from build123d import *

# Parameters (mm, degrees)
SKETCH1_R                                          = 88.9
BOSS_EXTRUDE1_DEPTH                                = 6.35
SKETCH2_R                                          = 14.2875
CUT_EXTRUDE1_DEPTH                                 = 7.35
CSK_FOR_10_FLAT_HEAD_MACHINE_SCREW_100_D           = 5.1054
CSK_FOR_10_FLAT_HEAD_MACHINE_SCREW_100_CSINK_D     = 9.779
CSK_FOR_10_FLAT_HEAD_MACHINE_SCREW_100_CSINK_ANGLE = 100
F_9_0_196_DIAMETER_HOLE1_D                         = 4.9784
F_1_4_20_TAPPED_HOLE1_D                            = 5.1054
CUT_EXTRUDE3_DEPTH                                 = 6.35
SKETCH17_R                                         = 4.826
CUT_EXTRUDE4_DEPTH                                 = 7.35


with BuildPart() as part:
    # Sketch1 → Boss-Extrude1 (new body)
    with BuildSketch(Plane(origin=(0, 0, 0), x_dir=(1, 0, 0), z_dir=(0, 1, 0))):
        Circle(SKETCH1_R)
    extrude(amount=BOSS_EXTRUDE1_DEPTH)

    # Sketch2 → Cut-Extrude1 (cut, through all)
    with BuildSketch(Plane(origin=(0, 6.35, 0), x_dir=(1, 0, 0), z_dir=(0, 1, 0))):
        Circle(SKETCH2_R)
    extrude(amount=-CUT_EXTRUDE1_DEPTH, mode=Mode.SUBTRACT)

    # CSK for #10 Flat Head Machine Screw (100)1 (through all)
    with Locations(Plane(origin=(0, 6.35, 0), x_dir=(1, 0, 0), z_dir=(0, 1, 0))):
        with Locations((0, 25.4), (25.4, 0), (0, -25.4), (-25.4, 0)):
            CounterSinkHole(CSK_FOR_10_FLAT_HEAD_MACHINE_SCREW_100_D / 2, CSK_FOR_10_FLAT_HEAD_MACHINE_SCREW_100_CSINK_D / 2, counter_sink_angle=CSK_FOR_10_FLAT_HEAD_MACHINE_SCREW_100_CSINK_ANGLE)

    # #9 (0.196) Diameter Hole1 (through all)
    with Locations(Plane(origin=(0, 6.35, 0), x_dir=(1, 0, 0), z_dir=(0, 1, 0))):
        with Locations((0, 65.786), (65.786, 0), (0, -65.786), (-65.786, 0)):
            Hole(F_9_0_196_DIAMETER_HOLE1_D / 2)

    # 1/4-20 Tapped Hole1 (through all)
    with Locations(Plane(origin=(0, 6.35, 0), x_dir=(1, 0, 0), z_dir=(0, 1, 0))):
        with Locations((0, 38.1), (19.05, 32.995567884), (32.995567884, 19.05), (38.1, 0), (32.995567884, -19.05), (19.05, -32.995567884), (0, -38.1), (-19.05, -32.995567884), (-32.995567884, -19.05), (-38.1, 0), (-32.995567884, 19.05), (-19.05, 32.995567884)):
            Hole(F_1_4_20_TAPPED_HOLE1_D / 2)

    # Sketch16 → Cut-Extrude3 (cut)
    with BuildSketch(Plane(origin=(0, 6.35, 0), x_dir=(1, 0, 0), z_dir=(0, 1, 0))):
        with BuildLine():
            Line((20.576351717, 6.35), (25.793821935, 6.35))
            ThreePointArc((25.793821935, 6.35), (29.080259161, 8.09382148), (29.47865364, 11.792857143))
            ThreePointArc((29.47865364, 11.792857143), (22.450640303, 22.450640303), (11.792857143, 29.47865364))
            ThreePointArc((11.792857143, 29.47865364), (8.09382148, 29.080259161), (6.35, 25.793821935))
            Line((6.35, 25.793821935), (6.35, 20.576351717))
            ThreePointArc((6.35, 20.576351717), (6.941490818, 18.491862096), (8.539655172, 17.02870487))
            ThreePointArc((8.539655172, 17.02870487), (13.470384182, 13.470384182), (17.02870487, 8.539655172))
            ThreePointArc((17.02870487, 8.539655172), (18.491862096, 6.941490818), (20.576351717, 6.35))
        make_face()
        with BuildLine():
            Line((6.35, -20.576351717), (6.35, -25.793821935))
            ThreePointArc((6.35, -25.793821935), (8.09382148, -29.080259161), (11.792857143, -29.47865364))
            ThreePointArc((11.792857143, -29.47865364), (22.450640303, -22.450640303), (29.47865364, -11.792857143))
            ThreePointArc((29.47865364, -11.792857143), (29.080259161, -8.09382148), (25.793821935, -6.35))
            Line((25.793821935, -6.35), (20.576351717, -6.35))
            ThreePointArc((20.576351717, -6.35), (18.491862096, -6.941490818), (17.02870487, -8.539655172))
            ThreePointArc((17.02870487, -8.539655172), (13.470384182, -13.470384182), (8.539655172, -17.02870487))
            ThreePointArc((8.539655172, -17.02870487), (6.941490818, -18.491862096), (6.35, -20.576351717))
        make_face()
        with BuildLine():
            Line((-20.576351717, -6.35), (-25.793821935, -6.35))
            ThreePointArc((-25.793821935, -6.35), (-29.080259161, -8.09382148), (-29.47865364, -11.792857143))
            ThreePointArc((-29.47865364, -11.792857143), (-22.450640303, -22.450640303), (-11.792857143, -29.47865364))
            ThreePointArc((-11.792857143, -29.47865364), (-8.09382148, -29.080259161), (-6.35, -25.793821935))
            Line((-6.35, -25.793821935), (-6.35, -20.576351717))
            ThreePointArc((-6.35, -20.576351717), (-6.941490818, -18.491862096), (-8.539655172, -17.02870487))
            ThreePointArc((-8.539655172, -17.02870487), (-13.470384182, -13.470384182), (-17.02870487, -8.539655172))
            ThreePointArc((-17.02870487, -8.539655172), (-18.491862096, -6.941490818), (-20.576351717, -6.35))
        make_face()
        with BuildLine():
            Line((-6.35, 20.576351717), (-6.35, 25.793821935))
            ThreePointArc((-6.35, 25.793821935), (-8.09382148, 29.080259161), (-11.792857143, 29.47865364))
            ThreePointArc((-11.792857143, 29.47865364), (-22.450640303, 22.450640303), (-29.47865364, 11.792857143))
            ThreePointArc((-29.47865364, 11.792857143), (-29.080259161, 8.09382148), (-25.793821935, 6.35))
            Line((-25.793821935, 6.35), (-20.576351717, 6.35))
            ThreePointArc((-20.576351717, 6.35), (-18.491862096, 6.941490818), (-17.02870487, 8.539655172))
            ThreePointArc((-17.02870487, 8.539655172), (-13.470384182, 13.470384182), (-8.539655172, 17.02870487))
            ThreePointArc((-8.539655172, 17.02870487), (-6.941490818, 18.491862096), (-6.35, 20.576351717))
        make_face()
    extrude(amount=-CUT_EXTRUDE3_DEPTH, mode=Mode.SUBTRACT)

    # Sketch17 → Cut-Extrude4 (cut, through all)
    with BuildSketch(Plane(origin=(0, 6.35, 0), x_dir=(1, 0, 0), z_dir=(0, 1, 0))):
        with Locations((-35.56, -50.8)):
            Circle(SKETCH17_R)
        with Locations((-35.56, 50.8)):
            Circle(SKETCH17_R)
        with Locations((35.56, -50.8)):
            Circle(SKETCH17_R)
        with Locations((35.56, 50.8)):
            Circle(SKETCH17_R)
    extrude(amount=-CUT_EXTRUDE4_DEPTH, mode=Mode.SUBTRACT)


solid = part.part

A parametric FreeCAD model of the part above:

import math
import FreeCAD as App
import Part
import Sketcher

V = App.Vector
Q = App.Units.Quantity

doc = App.newDocument("Part")
body = doc.addObject("PartDesign::Body", "Body")

# Sketch on XZ plane
sketch1 = body.newObject("Sketcher::SketchObject", "Sketch")
sketch1.AttachmentSupport = (doc.getObject("XZ_Plane"), [""])
sketch1.MapMode = "FlatFace"
sketch1.addGeometry(Part.Circle(V(0, 0, 0), V(0, 0, 1), 88.9), False)
sketch1.addConstraint([
    Sketcher.Constraint("Coincident", 0, 3, -1, 1),
    Sketcher.Constraint("Diameter", 0, Q("7 in")),
])
pad1 = body.newObject("PartDesign::Pad", "Pad")
pad1.Profile = sketch1
pad1.Length = Q("0.25 in")
pad1.Reversed = True

# Sketch on XZ plane
sketch2 = body.newObject("Sketcher::SketchObject", "Sketch001")
sketch2.AttachmentSupport = (doc.getObject("XZ_Plane"), [""])
sketch2.MapMode = "FlatFace"
sketch2.AttachmentOffset = App.Placement(V(0, 0, -0.25 * 25.4), App.Rotation())
sketch2.addGeometry(Part.Circle(V(0, 0, 0), V(0, 0, 1), 14.2875), False)
sketch2.addConstraint([
    Sketcher.Constraint("Coincident", 0, 3, -1, 1),
    Sketcher.Constraint("Diameter", 0, Q("1.125 in")),
])
pocket1 = body.newObject("PartDesign::Pocket", "Pocket")
pocket1.Profile = sketch2
pocket1.Type = "ThroughAll"
pocket1.Reversed = True

# Sketch on XZ plane
sketch3 = body.newObject("Sketcher::SketchObject", "Sketch002")
sketch3.AttachmentSupport = (doc.getObject("XZ_Plane"), [""])
sketch3.MapMode = "FlatFace"
sketch3.AttachmentOffset = App.Placement(V(0, 0, -0.25 * 25.4), App.Rotation())
sketch3.addGeometry([
    Part.Circle(V(0, -25.4, 0), V(0, 0, 1), 2.5527),
    Part.Circle(V(25.4, 0, 0), V(0, 0, 1), 2.5527),
    Part.Circle(V(0, 25.4, 0), V(0, 0, 1), 2.5527),
    Part.Circle(V(-25.4, 0, 0), V(0, 0, 1), 2.5527),
], False)
sketch3.addConstraint([
    Sketcher.Constraint("Equal", 0, 1),
    Sketcher.Constraint("Equal", 1, 2),
    Sketcher.Constraint("Equal", 2, 3),
    Sketcher.Constraint("Symmetric", 0, 3, 2, 3, -1, 1),
    Sketcher.Constraint("Symmetric", 1, 3, 3, 3, -1, 1),
    Sketcher.Constraint("PointOnObject", 0, 3, -2),
    Sketcher.Constraint("PointOnObject", 1, 3, -1),
    Sketcher.Constraint("Diameter", 0, Q("0.201 in")),
    Sketcher.Constraint("DistanceY", 0, 3, -1, 1, Q("1 in")),
    Sketcher.Constraint("DistanceX", -1, 1, 1, 3, Q("1 in")),
])
doc.recompute()
hole = body.newObject("PartDesign::Hole", "Hole")
hole.Profile = sketch3
hole.ThreadType = "None"
hole.Diameter = Q("0.201 in")
hole.DepthType = "ThroughAll"
hole.HoleCutType = "Countersink"
hole.HoleCutDiameter = Q("0.385 in")
hole.HoleCutCountersinkAngle = 100
hole.Reversed = True

# Sketch on XZ plane
sketch4 = body.newObject("Sketcher::SketchObject", "Sketch003")
sketch4.AttachmentSupport = (doc.getObject("XZ_Plane"), [""])
sketch4.MapMode = "FlatFace"
sketch4.AttachmentOffset = App.Placement(V(0, 0, -0.25 * 25.4), App.Rotation())
sketch4.addGeometry([
    Part.Circle(V(0, -65.786, 0), V(0, 0, 1), 2.4892),
    Part.Circle(V(65.786, 0, 0), V(0, 0, 1), 2.4892),
    Part.Circle(V(0, 65.786, 0), V(0, 0, 1), 2.4892),
    Part.Circle(V(-65.786, 0, 0), V(0, 0, 1), 2.4892),
], False)
sketch4.addConstraint([
    Sketcher.Constraint("Equal", 0, 1),
    Sketcher.Constraint("Equal", 1, 2),
    Sketcher.Constraint("Equal", 2, 3),
    Sketcher.Constraint("Symmetric", 0, 3, 2, 3, -1, 1),
    Sketcher.Constraint("Symmetric", 1, 3, 3, 3, -1, 1),
    Sketcher.Constraint("PointOnObject", 0, 3, -2),
    Sketcher.Constraint("PointOnObject", 1, 3, -1),
    Sketcher.Constraint("Diameter", 0, Q("0.196 in")),
    Sketcher.Constraint("DistanceY", 0, 3, -1, 1, Q("2.59 in")),
    Sketcher.Constraint("DistanceX", -1, 1, 1, 3, Q("2.59 in")),
])
doc.recompute()
hole2 = body.newObject("PartDesign::Hole", "Hole001")
hole2.Profile = sketch4
hole2.ThreadType = "None"
hole2.Diameter = Q("0.196 in")
hole2.DepthType = "ThroughAll"
hole2.Reversed = True

# Sketch on XZ plane
sketch5 = body.newObject("Sketcher::SketchObject", "Sketch004")
sketch5.AttachmentSupport = (doc.getObject("XZ_Plane"), [""])
sketch5.MapMode = "FlatFace"
sketch5.AttachmentOffset = App.Placement(V(0, 0, -0.25 * 25.4), App.Rotation())
sketch5.addGeometry([
    Part.Circle(V(0, -38.1, 0), V(0, 0, 1), 2.5527),  # 0
    Part.Circle(V(19.05, -32.995568, 0), V(0, 0, 1), 2.5527),  # 1
    Part.Circle(V(32.995568, -19.05, 0), V(0, 0, 1), 2.5527),  # 2
    Part.Circle(V(38.1, 0, 0), V(0, 0, 1), 2.5527),  # 3
    Part.Circle(V(32.995568, 19.05, 0), V(0, 0, 1), 2.5527),  # 4
    Part.Circle(V(19.05, 32.995568, 0), V(0, 0, 1), 2.5527),  # 5
    Part.Circle(V(0, 38.1, 0), V(0, 0, 1), 2.5527),  # 6
    Part.Circle(V(-19.05, 32.995568, 0), V(0, 0, 1), 2.5527),  # 7
    Part.Circle(V(-32.995568, 19.05, 0), V(0, 0, 1), 2.5527),  # 8
    Part.Circle(V(-38.1, 0, 0), V(0, 0, 1), 2.5527),  # 9
    Part.Circle(V(-32.995568, -19.05, 0), V(0, 0, 1), 2.5527),  # 10
    Part.Circle(V(-19.05, -32.995568, 0), V(0, 0, 1), 2.5527),  # 11
], False)
sketch5.addConstraint([
    Sketcher.Constraint("Equal", 0, 1),
    Sketcher.Constraint("Equal", 1, 2),
    Sketcher.Constraint("Equal", 2, 3),
    Sketcher.Constraint("Equal", 3, 4),
    Sketcher.Constraint("Equal", 4, 5),
    Sketcher.Constraint("Equal", 5, 6),
    Sketcher.Constraint("Equal", 6, 7),
    Sketcher.Constraint("Equal", 7, 8),
    Sketcher.Constraint("Equal", 8, 9),
    Sketcher.Constraint("Equal", 9, 10),
    Sketcher.Constraint("Equal", 10, 11),
    Sketcher.Constraint("Symmetric", 0, 3, 6, 3, -1, 1),
    Sketcher.Constraint("Symmetric", 1, 3, 7, 3, -1, 1),
    Sketcher.Constraint("Symmetric", 2, 3, 8, 3, -1, 1),
    Sketcher.Constraint("Symmetric", 3, 3, 9, 3, -1, 1),
    Sketcher.Constraint("Symmetric", 4, 3, 10, 3, -1, 1),
    Sketcher.Constraint("Symmetric", 5, 3, 11, 3, -1, 1),
    Sketcher.Constraint("Symmetric", 5, 3, 7, 3, -2),
    Sketcher.Constraint("Symmetric", 4, 3, 8, 3, -2),
    Sketcher.Constraint("PointOnObject", 0, 3, -2),
    Sketcher.Constraint("PointOnObject", 3, 3, -1),
    Sketcher.Constraint("Diameter", 0, Q("0.201 in")),
    Sketcher.Constraint("DistanceY", 0, 3, -1, 1, Q("1.5 in")),
    Sketcher.Constraint("DistanceX", -1, 1, 3, 3, Q("1.5 in")),
    Sketcher.Constraint("DistanceY", 2, 3, 4, 3, Q("1.5 in")),
    Sketcher.Constraint("DistanceX", 7, 3, 5, 3, Q("1.5 in")),
    Sketcher.Constraint("DistanceY", 1, 3, -1, 1, Q("32.995568 mm")),
    Sketcher.Constraint("DistanceX", -1, 1, 2, 3, Q("32.995568 mm")),
])
doc.recompute()
hole3 = body.newObject("PartDesign::Hole", "Hole002")
hole3.Profile = sketch5
hole3.ThreadType = "None"
hole3.Diameter = Q("0.201 in")
hole3.DepthType = "ThroughAll"
hole3.Reversed = True

# Sketch on XZ plane
sketch6 = body.newObject("Sketcher::SketchObject", "Sketch005")
sketch6.AttachmentSupport = (doc.getObject("XZ_Plane"), [""])
sketch6.MapMode = "FlatFace"
sketch6.AttachmentOffset = App.Placement(V(0, 0, -0.25 * 25.4), App.Rotation())
sketch6.addGeometry([
    Part.LineSegment(V(20.576352, -6.35, 0), V(25.793822, -6.35, 0)),  # 0
    Part.ArcOfCircle(Part.Circle(V(25.793822, -10.31875, 0), V(0, 0, 1), 3.96875), math.radians(-21.803748), math.radians(90)),  # 1
    Part.ArcOfCircle(Part.Circle(V(0, 0, 0), V(0, 0, 1), 31.75), math.radians(-68.196252), math.radians(-21.803748)),  # 2
    Part.ArcOfCircle(Part.Circle(V(10.31875, -25.793822, 0), V(0, 0, 1), 3.96875), math.radians(-180), math.radians(-68.196252)),  # 3
    Part.LineSegment(V(6.35, -25.793822, 0), V(6.35, -20.576352, 0)),  # 4
    Part.ArcOfCircle(Part.Circle(V(10.31875, -20.576352, 0), V(0, 0, 1), 3.96875), math.radians(116.633119), math.radians(180)),  # 5
    Part.ArcOfCircle(Part.Circle(V(0, 0, 0), V(0, 0, 1), 19.05), math.radians(-63.366881), math.radians(-26.633119)),  # 6
    Part.ArcOfCircle(Part.Circle(V(20.576352, -10.31875, 0), V(0, 0, 1), 3.96875), math.radians(90), math.radians(153.366881)),  # 7
    Part.LineSegment(V(6.35, 20.576352, 0), V(6.35, 25.793822, 0)),  # 8
    Part.ArcOfCircle(Part.Circle(V(10.31875, 25.793822, 0), V(0, 0, 1), 3.96875), math.radians(68.196252), math.radians(180)),  # 9
    Part.ArcOfCircle(Part.Circle(V(0, 0, 0), V(0, 0, 1), 31.75), math.radians(21.803748), math.radians(68.196252)),  # 10
    Part.ArcOfCircle(Part.Circle(V(25.793822, 10.31875, 0), V(0, 0, 1), 3.96875), math.radians(-90), math.radians(21.803748)),  # 11
    Part.LineSegment(V(25.793822, 6.35, 0), V(20.576352, 6.35, 0)),  # 12
    Part.ArcOfCircle(Part.Circle(V(20.576352, 10.31875, 0), V(0, 0, 1), 3.96875), math.radians(-153.366881), math.radians(-90)),  # 13
    Part.ArcOfCircle(Part.Circle(V(0, 0, 0), V(0, 0, 1), 19.05), math.radians(26.633119), math.radians(63.366881)),  # 14
    Part.ArcOfCircle(Part.Circle(V(10.31875, 20.576352, 0), V(0, 0, 1), 3.96875), math.radians(180), math.radians(243.366881)),  # 15
    Part.LineSegment(V(-20.576352, 6.35, 0), V(-25.793822, 6.35, 0)),  # 16
    Part.ArcOfCircle(Part.Circle(V(-25.793822, 10.31875, 0), V(0, 0, 1), 3.96875), math.radians(158.196252), math.radians(270)),  # 17
    Part.ArcOfCircle(Part.Circle(V(0, 0, 0), V(0, 0, 1), 31.75), math.radians(111.803748), math.radians(158.196252)),  # 18
    Part.ArcOfCircle(Part.Circle(V(-10.31875, 25.793822, 0), V(0, 0, 1), 3.96875), math.radians(0), math.radians(111.803748)),  # 19
    Part.LineSegment(V(-6.35, 25.793822, 0), V(-6.35, 20.576352, 0)),  # 20
    Part.ArcOfCircle(Part.Circle(V(-10.31875, 20.576352, 0), V(0, 0, 1), 3.96875), math.radians(-63.366881), math.radians(0)),  # 21
    Part.ArcOfCircle(Part.Circle(V(0, 0, 0), V(0, 0, 1), 19.05), math.radians(116.633119), math.radians(153.366881)),  # 22
    Part.ArcOfCircle(Part.Circle(V(-20.576352, 10.31875, 0), V(0, 0, 1), 3.96875), math.radians(-90), math.radians(-26.633119)),  # 23
    Part.LineSegment(V(-6.35, -20.576352, 0), V(-6.35, -25.793822, 0)),  # 24
    Part.ArcOfCircle(Part.Circle(V(-10.31875, -25.793822, 0), V(0, 0, 1), 3.96875), math.radians(-111.803748), math.radians(0)),  # 25
    Part.ArcOfCircle(Part.Circle(V(0, 0, 0), V(0, 0, 1), 31.75), math.radians(-158.196252), math.radians(-111.803748)),  # 26
    Part.ArcOfCircle(Part.Circle(V(-25.793822, -10.31875, 0), V(0, 0, 1), 3.96875), math.radians(90), math.radians(201.803748)),  # 27
    Part.LineSegment(V(-25.793822, -6.35, 0), V(-20.576352, -6.35, 0)),  # 28
    Part.ArcOfCircle(Part.Circle(V(-20.576352, -10.31875, 0), V(0, 0, 1), 3.96875), math.radians(26.633119), math.radians(90)),  # 29
    Part.ArcOfCircle(Part.Circle(V(0, 0, 0), V(0, 0, 1), 19.05), math.radians(-153.366881), math.radians(-116.633119)),  # 30
    Part.ArcOfCircle(Part.Circle(V(-10.31875, -20.576352, 0), V(0, 0, 1), 3.96875), math.radians(0), math.radians(63.366881)),  # 31
], False)
sketch6.addConstraint([
    Sketcher.Constraint("Tangent", 0, 2, 1, 2),
    Sketcher.Constraint("Tangent", 1, 1, 2, 2),
    Sketcher.Constraint("Tangent", 2, 1, 3, 2),
    Sketcher.Constraint("Tangent", 3, 1, 4, 1),
    Sketcher.Constraint("Tangent", 4, 2, 5, 2),
    Sketcher.Constraint("Tangent", 5, 1, 6, 1),
    Sketcher.Constraint("Tangent", 6, 2, 7, 2),
    Sketcher.Constraint("Tangent", 7, 1, 0, 1),
    Sketcher.Constraint("Tangent", 8, 2, 9, 2),
    Sketcher.Constraint("Tangent", 9, 1, 10, 2),
    Sketcher.Constraint("Tangent", 10, 1, 11, 2),
    Sketcher.Constraint("Tangent", 11, 1, 12, 1),
    Sketcher.Constraint("Tangent", 12, 2, 13, 2),
    Sketcher.Constraint("Tangent", 13, 1, 14, 1),
    Sketcher.Constraint("Tangent", 14, 2, 15, 2),
    Sketcher.Constraint("Tangent", 15, 1, 8, 1),
    Sketcher.Constraint("Tangent", 16, 2, 17, 2),
    Sketcher.Constraint("Tangent", 17, 1, 18, 2),
    Sketcher.Constraint("Tangent", 18, 1, 19, 2),
    Sketcher.Constraint("Tangent", 19, 1, 20, 1),
    Sketcher.Constraint("Tangent", 20, 2, 21, 2),
    Sketcher.Constraint("Tangent", 21, 1, 22, 1),
    Sketcher.Constraint("Tangent", 22, 2, 23, 2),
    Sketcher.Constraint("Tangent", 23, 1, 16, 1),
    Sketcher.Constraint("Tangent", 24, 2, 25, 2),
    Sketcher.Constraint("Tangent", 25, 1, 26, 2),
    Sketcher.Constraint("Tangent", 26, 1, 27, 2),
    Sketcher.Constraint("Tangent", 27, 1, 28, 1),
    Sketcher.Constraint("Tangent", 28, 2, 29, 2),
    Sketcher.Constraint("Tangent", 29, 1, 30, 1),
    Sketcher.Constraint("Tangent", 30, 2, 31, 2),
    Sketcher.Constraint("Tangent", 31, 1, 24, 1),
    Sketcher.Constraint("Horizontal", 0),
    Sketcher.Constraint("Vertical", 4),
    Sketcher.Constraint("Vertical", 8),
    Sketcher.Constraint("Horizontal", 12),
    Sketcher.Constraint("Horizontal", 16),
    Sketcher.Constraint("Vertical", 20),
    Sketcher.Constraint("Vertical", 24),
    Sketcher.Constraint("Horizontal", 28),
    Sketcher.Constraint("Coincident", 2, 3, -1, 1),
    Sketcher.Constraint("Coincident", 6, 3, -1, 1),
    Sketcher.Constraint("Coincident", 10, 3, -1, 1),
    Sketcher.Constraint("Coincident", 14, 3, -1, 1),
    Sketcher.Constraint("Coincident", 18, 3, -1, 1),
    Sketcher.Constraint("Coincident", 22, 3, -1, 1),
    Sketcher.Constraint("Coincident", 26, 3, -1, 1),
    Sketcher.Constraint("Coincident", 30, 3, -1, 1),
    Sketcher.Constraint("Equal", 1, 3),
    Sketcher.Constraint("Equal", 3, 5),
    Sketcher.Constraint("Equal", 5, 7),
    Sketcher.Constraint("Equal", 7, 9),
    Sketcher.Constraint("Equal", 2, 10),
    Sketcher.Constraint("Equal", 9, 11),
    Sketcher.Constraint("Equal", 11, 13),
    Sketcher.Constraint("Equal", 6, 14),
    Sketcher.Constraint("Equal", 13, 15),
    Sketcher.Constraint("Equal", 15, 17),
    Sketcher.Constraint("Equal", 10, 18),
    Sketcher.Constraint("Equal", 17, 19),
    Sketcher.Constraint("Equal", 19, 21),
    Sketcher.Constraint("Equal", 14, 22),
    Sketcher.Constraint("Equal", 21, 23),
    Sketcher.Constraint("Equal", 23, 25),
    Sketcher.Constraint("Equal", 18, 26),
    Sketcher.Constraint("Equal", 25, 27),
    Sketcher.Constraint("Equal", 27, 29),
    Sketcher.Constraint("Equal", 22, 30),
    Sketcher.Constraint("Equal", 29, 31),
    Sketcher.Constraint("Horizontal", 13, 3, 17, 3),
    Sketcher.Constraint("Horizontal", 9, 3, 19, 3),
    Sketcher.Constraint("Horizontal", 3, 3, 25, 3),
    Sketcher.Constraint("Horizontal", 7, 3, 27, 3),
    Sketcher.Constraint("Vertical", 5, 3, 9, 3),
    Sketcher.Constraint("Vertical", 1, 3, 11, 3),
    Sketcher.Constraint("Equal", 28, 4),
    Sketcher.Constraint("Radius", 2, Q("1.25 in")),
    Sketcher.Constraint("Radius", 6, Q("0.75 in")),
    Sketcher.Constraint("Radius", 1, Q("0.15625 in")),
    Sketcher.Constraint("DistanceY", 0, 2, 11, 1, Q("0.5 in")),
])
pocket2 = body.newObject("PartDesign::Pocket", "Pocket001")
pocket2.Profile = sketch6
pocket2.Length = Q("0.25 in")
pocket2.Reversed = True

# Sketch on XZ plane
sketch7 = body.newObject("Sketcher::SketchObject", "Sketch006")
sketch7.AttachmentSupport = (doc.getObject("XZ_Plane"), [""])
sketch7.MapMode = "FlatFace"
sketch7.AttachmentOffset = App.Placement(V(0, 0, -0.25 * 25.4), App.Rotation())
sketch7.addGeometry([
    Part.Circle(V(-35.56, 50.8, 0), V(0, 0, 1), 4.826),
    Part.Circle(V(-35.56, -50.8, 0), V(0, 0, 1), 4.826),
    Part.Circle(V(35.56, 50.8, 0), V(0, 0, 1), 4.826),
    Part.Circle(V(35.56, -50.8, 0), V(0, 0, 1), 4.826),
], False)
sketch7.addConstraint([
    Sketcher.Constraint("Equal", 0, 1),
    Sketcher.Constraint("Equal", 1, 2),
    Sketcher.Constraint("Equal", 2, 3),
    Sketcher.Constraint("Symmetric", 1, 3, 2, 3, -1, 1),
    Sketcher.Constraint("Symmetric", 0, 3, 3, 3, -1, 1),
    Sketcher.Constraint("Symmetric", 0, 3, 2, 3, -2),
    Sketcher.Constraint("Diameter", 0, Q("0.38 in")),
    Sketcher.Constraint("DistanceY", -1, 1, 0, 3, Q("2 in")),
    Sketcher.Constraint("DistanceX", 0, 3, -1, 1, Q("1.4 in")),
])
pocket3 = body.newObject("PartDesign::Pocket", "Pocket002")
pocket3.Profile = sketch7
pocket3.Type = "ThroughAll"
pocket3.Reversed = True

doc.recompute()
